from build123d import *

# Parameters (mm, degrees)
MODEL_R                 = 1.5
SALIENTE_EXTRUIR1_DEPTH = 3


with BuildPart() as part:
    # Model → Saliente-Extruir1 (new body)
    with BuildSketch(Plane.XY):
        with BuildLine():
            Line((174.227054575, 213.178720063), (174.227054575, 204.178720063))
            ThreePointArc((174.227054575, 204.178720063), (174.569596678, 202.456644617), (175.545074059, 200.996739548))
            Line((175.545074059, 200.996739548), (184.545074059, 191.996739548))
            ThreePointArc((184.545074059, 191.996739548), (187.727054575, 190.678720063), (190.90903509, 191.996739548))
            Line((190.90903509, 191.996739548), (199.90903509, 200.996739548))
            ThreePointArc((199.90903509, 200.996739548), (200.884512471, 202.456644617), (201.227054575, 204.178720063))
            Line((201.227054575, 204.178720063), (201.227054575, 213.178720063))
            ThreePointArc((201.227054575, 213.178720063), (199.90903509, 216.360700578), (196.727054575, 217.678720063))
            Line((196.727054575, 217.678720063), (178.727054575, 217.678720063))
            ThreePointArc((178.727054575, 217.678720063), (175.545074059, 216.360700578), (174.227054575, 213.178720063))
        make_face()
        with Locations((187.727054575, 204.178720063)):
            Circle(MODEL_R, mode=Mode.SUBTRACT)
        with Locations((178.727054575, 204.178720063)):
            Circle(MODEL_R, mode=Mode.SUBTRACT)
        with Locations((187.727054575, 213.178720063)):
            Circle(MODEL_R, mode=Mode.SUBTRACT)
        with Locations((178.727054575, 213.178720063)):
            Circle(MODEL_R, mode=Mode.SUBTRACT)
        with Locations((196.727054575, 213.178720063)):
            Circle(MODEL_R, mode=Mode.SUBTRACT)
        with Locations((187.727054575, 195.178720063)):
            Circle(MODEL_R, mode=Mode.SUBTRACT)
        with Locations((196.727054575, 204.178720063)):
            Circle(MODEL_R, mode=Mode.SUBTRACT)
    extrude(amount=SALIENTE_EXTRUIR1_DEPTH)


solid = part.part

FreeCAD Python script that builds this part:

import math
import FreeCAD as App
import Part
import Sketcher

V = App.Vector

doc = App.newDocument("Part")
params = doc.addObject("Spreadsheet::Sheet", "Params")
for row, (alias, value) in enumerate([
    ("sketch1_diameter", "3 mm"),
    ("sketch1_radius", "4.5 mm"),
    ("sketch1_width", "18 mm"),
    ("sketch1_height", "9 mm"),
    ("pad1_length", "3 mm"),
], start=1):
    params.set(f"A{row}", alias)
    params.set(f"B{row}", "=" + value)
    params.setAlias(f"B{row}", alias)

body = doc.addObject("PartDesign::Body", "Body")

sketch1 = body.newObject("Sketcher::SketchObject", "Sketch")
sketch1.AttachmentSupport = (doc.getObject("XY_Plane"), [""])
sketch1.MapMode = "FlatFace"
sketch1.addGeometry(Part.LineSegment(V(174.227055, 213.17872, 0), V(174.227055, 204.17872, 0)), False)
sketch1.addGeometry(Part.ArcOfCircle(Part.Circle(V(178.727055, 204.17872, 0), V(0, 0, 1), 4.5), math.radians(180), math.radians(225)), False)
sketch1.addGeometry(Part.LineSegment(V(175.545074, 200.99674, 0), V(184.545074, 191.99674, 0)), False)
sketch1.addGeometry(Part.ArcOfCircle(Part.Circle(V(187.727055, 195.17872, 0), V(0, 0, 1), 4.5), math.radians(-135), math.radians(-45)), False)
sketch1.addGeometry(Part.LineSegment(V(190.909035, 191.99674, 0), V(199.909035, 200.99674, 0)), False)
sketch1.addGeometry(Part.ArcOfCircle(Part.Circle(V(196.727055, 204.17872, 0), V(0, 0, 1), 4.5), math.radians(-45), math.radians(0)), False)
sketch1.addGeometry(Part.LineSegment(V(201.227055, 204.17872, 0), V(201.227055, 213.17872, 0)), False)
sketch1.addGeometry(Part.ArcOfCircle(Part.Circle(V(196.727055, 213.17872, 0), V(0, 0, 1), 4.5), math.radians(0), math.radians(90)), False)
sketch1.addGeometry(Part.LineSegment(V(196.727055, 217.67872, 0), V(178.727055, 217.67872, 0)), False)
sketch1.addGeometry(Part.ArcOfCircle(Part.Circle(V(178.727055, 213.17872, 0), V(0, 0, 1), 4.5), math.radians(90), math.radians(180)), False)
sketch1.addGeometry(Part.Circle(V(187.727055, 195.17872, 0), V(0, 0, 1), 1.5), False)
sketch1.addGeometry(Part.Circle(V(178.727055, 204.17872, 0), V(0, 0, 1), 1.5), False)
sketch1.addGeometry(Part.Circle(V(178.727055, 213.17872, 0), V(0, 0, 1), 1.5), False)
sketch1.addGeometry(Part.Circle(V(187.727055, 204.17872, 0), V(0, 0, 1), 1.5), False)
sketch1.addGeometry(Part.Circle(V(196.727055, 204.17872, 0), V(0, 0, 1), 1.5), False)
sketch1.addGeometry(Part.Circle(V(187.727055, 213.17872, 0), V(0, 0, 1), 1.5), False)
sketch1.addGeometry(Part.Circle(V(196.727055, 213.17872, 0), V(0, 0, 1), 1.5), False)
sketch1.addConstraint(Sketcher.Constraint("Tangent", 0, 2, 1, 1))
sketch1.addConstraint(Sketcher.Constraint("Tangent", 1, 2, 2, 1))
sketch1.addConstraint(Sketcher.Constraint("Tangent", 2, 2, 3, 1))
sketch1.addConstraint(Sketcher.Constraint("Tangent", 3, 2, 4, 1))
sketch1.addConstraint(Sketcher.Constraint("Tangent", 4, 2, 5, 1))
sketch1.addConstraint(Sketcher.Constraint("Tangent", 5, 2, 6, 1))
sketch1.addConstraint(Sketcher.Constraint("Tangent", 6, 2, 7, 1))
sketch1.addConstraint(Sketcher.Constraint("Tangent", 7, 2, 8, 1))
sketch1.addConstraint(Sketcher.Constraint("Tangent", 8, 2, 9, 1))
sketch1.addConstraint(Sketcher.Constraint("Tangent", 9, 2, 0, 1))
sketch1.addConstraint(Sketcher.Constraint("Vertical", 0))
sketch1.addConstraint(Sketcher.Constraint("Vertical", 6))
sketch1.addConstraint(Sketcher.Constraint("Horizontal", 8))
sketch1.addConstraint(Sketcher.Constraint("Coincident", 10, 3, 3, 3))
sketch1.addConstraint(Sketcher.Constraint("Coincident", 11, 3, 1, 3))
sketch1.addConstraint(Sketcher.Constraint("Coincident", 12, 3, 9, 3))
sketch1.addConstraint(Sketcher.Constraint("Coincident", 14, 3, 5, 3))
sketch1.addConstraint(Sketcher.Constraint("Coincident", 16, 3, 7, 3))
sketch1.addConstraint(Sketcher.Constraint("Equal", 1, 3))
sketch1.addConstraint(Sketcher.Constraint("Equal", 3, 5))
sketch1.addConstraint(Sketcher.Constraint("Equal", 5, 7))
sketch1.addConstraint(Sketcher.Constraint("Equal", 7, 9))
sketch1.addConstraint(Sketcher.Constraint("Equal", 10, 11))
sketch1.addConstraint(Sketcher.Constraint("Equal", 11, 12))
sketch1.addConstraint(Sketcher.Constraint("Equal", 12, 13))
sketch1.addConstraint(Sketcher.Constraint("Equal", 13, 14))
sketch1.addConstraint(Sketcher.Constraint("Equal", 14, 15))
sketch1.addConstraint(Sketcher.Constraint("Equal", 15, 16))
sketch1.addConstraint(Sketcher.Constraint("Perpendicular", 2, 4))
sketch1.addConstraint(Sketcher.Constraint("Horizontal", 1, 3, 5, 3))
sketch1.addConstraint(Sketcher.Constraint("Horizontal", 11, 3, 13, 3))
sketch1.addConstraint(Sketcher.Constraint("Horizontal", 12, 3, 15, 3))
sketch1.addConstraint(Sketcher.Constraint("Horizontal", 2, 2, 3, 2))
sketch1.addConstraint(Sketcher.Constraint("Vertical", 10, 3, 13, 3))
sketch1.addConstraint(Sketcher.Constraint("Vertical", 13, 3, 15, 3))
sketch1.addConstraint(Sketcher.Constraint("Diameter", 10, 3.0))
sketch1.addConstraint(Sketcher.Constraint("Radius", 1, 4.5))
sketch1.addConstraint(Sketcher.Constraint("DistanceX", 8, 2, 8, 1, 18.0))
sketch1.addConstraint(Sketcher.Constraint("DistanceY", 0, 2, 0, 1, 9.0))
sketch1.addConstraint(Sketcher.Constraint("DistanceY", -1, 1, 1, 3, 204.17872))
sketch1.addConstraint(Sketcher.Constraint("DistanceX", -1, 1, 1, 3, 178.727055))
sketch1.setExpression("Constraints[35]", "Params.sketch1_diameter")
sketch1.setExpression("Constraints[36]", "Params.sketch1_radius")
sketch1.setExpression("Constraints[37]", "Params.sketch1_width")
sketch1.setExpression("Constraints[38]", "Params.sketch1_height")
pad1 = body.newObject("PartDesign::Pad", "Pad")
pad1.Profile = sketch1
pad1.setExpression("Length", "Params.pad1_length")

doc.recompute()
